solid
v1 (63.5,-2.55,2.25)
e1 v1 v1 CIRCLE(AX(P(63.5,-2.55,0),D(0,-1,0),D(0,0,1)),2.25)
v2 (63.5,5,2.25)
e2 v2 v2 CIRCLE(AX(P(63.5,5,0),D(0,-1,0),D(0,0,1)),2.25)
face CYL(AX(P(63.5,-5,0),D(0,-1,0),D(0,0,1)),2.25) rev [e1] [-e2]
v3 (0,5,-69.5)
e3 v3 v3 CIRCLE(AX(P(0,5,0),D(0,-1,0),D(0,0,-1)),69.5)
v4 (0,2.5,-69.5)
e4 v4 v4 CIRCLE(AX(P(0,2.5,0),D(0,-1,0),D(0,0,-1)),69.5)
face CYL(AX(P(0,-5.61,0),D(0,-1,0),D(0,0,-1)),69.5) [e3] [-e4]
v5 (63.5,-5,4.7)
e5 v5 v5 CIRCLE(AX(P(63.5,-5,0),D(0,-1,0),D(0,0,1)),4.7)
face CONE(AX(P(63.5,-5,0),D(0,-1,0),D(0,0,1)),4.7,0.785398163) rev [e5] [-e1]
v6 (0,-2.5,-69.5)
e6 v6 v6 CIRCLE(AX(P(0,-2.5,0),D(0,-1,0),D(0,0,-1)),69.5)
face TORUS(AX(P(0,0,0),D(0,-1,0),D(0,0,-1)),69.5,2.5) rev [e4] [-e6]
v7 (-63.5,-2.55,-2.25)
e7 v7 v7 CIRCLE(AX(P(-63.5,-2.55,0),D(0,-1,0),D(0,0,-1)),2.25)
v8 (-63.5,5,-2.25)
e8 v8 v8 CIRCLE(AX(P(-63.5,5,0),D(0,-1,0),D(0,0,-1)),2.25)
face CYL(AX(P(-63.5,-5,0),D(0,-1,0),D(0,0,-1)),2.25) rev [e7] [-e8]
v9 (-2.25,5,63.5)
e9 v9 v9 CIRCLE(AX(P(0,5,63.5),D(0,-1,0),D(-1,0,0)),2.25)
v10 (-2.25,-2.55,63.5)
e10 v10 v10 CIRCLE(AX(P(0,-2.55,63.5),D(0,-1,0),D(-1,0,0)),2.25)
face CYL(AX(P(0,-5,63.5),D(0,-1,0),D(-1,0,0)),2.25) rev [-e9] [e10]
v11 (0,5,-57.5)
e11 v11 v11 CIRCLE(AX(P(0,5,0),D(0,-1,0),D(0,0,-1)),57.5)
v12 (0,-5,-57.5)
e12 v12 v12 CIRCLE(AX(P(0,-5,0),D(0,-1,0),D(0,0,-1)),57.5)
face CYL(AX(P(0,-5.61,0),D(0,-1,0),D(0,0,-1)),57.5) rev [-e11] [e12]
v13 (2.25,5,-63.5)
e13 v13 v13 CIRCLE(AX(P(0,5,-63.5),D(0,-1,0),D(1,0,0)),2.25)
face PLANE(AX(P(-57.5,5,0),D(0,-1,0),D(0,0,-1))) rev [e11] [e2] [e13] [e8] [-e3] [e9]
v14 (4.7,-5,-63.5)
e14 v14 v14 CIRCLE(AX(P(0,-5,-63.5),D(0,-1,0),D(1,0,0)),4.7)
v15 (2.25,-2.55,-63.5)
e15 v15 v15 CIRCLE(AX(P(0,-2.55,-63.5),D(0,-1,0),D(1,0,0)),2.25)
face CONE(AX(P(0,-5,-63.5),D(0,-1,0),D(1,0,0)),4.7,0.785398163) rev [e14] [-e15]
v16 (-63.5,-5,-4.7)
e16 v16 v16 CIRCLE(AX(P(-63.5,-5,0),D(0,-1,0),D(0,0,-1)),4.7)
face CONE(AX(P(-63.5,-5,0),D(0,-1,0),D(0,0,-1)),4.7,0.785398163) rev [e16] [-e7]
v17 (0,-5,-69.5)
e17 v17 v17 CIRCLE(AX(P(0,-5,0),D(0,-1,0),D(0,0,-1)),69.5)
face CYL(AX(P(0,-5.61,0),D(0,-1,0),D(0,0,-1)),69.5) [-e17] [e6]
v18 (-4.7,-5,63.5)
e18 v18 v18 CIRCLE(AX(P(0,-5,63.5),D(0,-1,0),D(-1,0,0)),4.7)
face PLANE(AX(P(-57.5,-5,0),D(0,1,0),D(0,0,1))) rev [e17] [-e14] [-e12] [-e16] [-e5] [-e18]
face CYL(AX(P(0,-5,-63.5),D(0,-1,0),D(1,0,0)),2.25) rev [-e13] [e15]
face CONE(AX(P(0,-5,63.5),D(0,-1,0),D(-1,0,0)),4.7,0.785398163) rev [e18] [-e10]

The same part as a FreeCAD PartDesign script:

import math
import FreeCAD as App
import Part
import Sketcher

V = App.Vector

doc = App.newDocument("Part")
body = doc.addObject("PartDesign::Body", "Body")

sketch1 = body.newObject("Sketcher::SketchObject", "Sketch")
sketch1.AttachmentSupport = (doc.getObject("XY_Plane"), [""])
sketch1.MapMode = "FlatFace"
sketch1.addGeometry(Part.LineSegment(V(-57.5, -5, 0), V(-57.5, 5, 0)), False)
sketch1.addGeometry(Part.LineSegment(V(-57.5, 5, 0), V(-69.5, 5, 0)), False)
sketch1.addGeometry(Part.LineSegment(V(-69.5, 5, 0), V(-69.5, 2.5, 0)), False)
sketch1.addGeometry(Part.ArcOfCircle(Part.Circle(V(-69.5, 0, 0), V(0, 0, 1), 2.5), math.radians(-90), math.radians(90)), False)
sketch1.addGeometry(Part.LineSegment(V(-69.5, -2.5, 0), V(-69.5, -5, 0)), False)
sketch1.addGeometry(Part.LineSegment(V(-69.5, -5, 0), V(-57.5, -5, 0)), False)
sketch1.addConstraint(Sketcher.Constraint("Coincident", 0, 2, 1, 1))
sketch1.addConstraint(Sketcher.Constraint("Coincident", 1, 2, 2, 1))
sketch1.addConstraint(Sketcher.Constraint("Coincident", 2, 2, 3, 2))
sketch1.addConstraint(Sketcher.Constraint("Coincident", 3, 1, 4, 1))
sketch1.addConstraint(Sketcher.Constraint("Coincident", 4, 2, 5, 1))
sketch1.addConstraint(Sketcher.Constraint("Coincident", 5, 2, 0, 1))
sketch1.addConstraint(Sketcher.Constraint("Vertical", 0))
sketch1.addConstraint(Sketcher.Constraint("Horizontal", 1))
sketch1.addConstraint(Sketcher.Constraint("Vertical", 2))
sketch1.addConstraint(Sketcher.Constraint("Vertical", 4))
sketch1.addConstraint(Sketcher.Constraint("Horizontal", 5))
sketch1.addConstraint(Sketcher.Constraint("Symmetric", 2, 2, 3, 1, -1))
sketch1.addConstraint(Sketcher.Constraint("Vertical", 3, 3, 1, 2))
sketch1.addConstraint(Sketcher.Constraint("Equal", 2, 4))
sketch1.addConstraint(Sketcher.Constraint("Radius", 3, 2.5))
sketch1.addConstraint(Sketcher.Constraint("DistanceX", 1, 2, 1, 1, 12.0))
sketch1.addConstraint(Sketcher.Constraint("DistanceY", 0, 1, 0, 2, 10.0))
sketch1.addConstraint(Sketcher.Constraint("DistanceX", 3, 3, -1, 1, 69.5))
revolution = body.newObject("PartDesign::Revolution", "Revolution")
revolution.Profile = sketch1
revolution.ReferenceAxis = (sketch1, ["V_Axis"])
revolution.Angle = 360

sketch2 = body.newObject("Sketcher::SketchObject", "Sketch001")
sketch2.AttachmentSupport = (doc.getObject("XZ_Plane"), [""])
sketch2.MapMode = "FlatFace"
sketch2.AttachmentOffset = App.Placement(V(0, 0, 5), App.Rotation())
sketch2.addGeometry(Part.Circle(V(-63.5, 0, 0), V(0, 0, 1), 2.25), False)
sketch2.addConstraint(Sketcher.Constraint("PointOnObject", 0, 3, -1))
sketch2.addConstraint(Sketcher.Constraint("Diameter", 0, 4.5))
sketch2.addConstraint(Sketcher.Constraint("DistanceX", 0, 3, -1, 1, 63.5))
doc.recompute()
hole = body.newObject("PartDesign::Hole", "Hole")
hole.Profile = sketch2
hole.ThreadType = "None"
hole.Diameter = 4.5
hole.DepthType = "ThroughAll"
hole.HoleCutType = "Countersink"
hole.HoleCutDiameter = 9.4
hole.HoleCutCountersinkAngle = 90
doc.recompute()

polarpattern = body.newObject("PartDesign::PolarPattern", "PolarPattern")
polarpattern.Originals = [hole]
polarpattern.Axis = (doc.getObject("Y_Axis"), [""])
polarpattern.Angle = 360
polarpattern.Occurrences = 4
body.Tip = polarpattern

doc.recompute()
